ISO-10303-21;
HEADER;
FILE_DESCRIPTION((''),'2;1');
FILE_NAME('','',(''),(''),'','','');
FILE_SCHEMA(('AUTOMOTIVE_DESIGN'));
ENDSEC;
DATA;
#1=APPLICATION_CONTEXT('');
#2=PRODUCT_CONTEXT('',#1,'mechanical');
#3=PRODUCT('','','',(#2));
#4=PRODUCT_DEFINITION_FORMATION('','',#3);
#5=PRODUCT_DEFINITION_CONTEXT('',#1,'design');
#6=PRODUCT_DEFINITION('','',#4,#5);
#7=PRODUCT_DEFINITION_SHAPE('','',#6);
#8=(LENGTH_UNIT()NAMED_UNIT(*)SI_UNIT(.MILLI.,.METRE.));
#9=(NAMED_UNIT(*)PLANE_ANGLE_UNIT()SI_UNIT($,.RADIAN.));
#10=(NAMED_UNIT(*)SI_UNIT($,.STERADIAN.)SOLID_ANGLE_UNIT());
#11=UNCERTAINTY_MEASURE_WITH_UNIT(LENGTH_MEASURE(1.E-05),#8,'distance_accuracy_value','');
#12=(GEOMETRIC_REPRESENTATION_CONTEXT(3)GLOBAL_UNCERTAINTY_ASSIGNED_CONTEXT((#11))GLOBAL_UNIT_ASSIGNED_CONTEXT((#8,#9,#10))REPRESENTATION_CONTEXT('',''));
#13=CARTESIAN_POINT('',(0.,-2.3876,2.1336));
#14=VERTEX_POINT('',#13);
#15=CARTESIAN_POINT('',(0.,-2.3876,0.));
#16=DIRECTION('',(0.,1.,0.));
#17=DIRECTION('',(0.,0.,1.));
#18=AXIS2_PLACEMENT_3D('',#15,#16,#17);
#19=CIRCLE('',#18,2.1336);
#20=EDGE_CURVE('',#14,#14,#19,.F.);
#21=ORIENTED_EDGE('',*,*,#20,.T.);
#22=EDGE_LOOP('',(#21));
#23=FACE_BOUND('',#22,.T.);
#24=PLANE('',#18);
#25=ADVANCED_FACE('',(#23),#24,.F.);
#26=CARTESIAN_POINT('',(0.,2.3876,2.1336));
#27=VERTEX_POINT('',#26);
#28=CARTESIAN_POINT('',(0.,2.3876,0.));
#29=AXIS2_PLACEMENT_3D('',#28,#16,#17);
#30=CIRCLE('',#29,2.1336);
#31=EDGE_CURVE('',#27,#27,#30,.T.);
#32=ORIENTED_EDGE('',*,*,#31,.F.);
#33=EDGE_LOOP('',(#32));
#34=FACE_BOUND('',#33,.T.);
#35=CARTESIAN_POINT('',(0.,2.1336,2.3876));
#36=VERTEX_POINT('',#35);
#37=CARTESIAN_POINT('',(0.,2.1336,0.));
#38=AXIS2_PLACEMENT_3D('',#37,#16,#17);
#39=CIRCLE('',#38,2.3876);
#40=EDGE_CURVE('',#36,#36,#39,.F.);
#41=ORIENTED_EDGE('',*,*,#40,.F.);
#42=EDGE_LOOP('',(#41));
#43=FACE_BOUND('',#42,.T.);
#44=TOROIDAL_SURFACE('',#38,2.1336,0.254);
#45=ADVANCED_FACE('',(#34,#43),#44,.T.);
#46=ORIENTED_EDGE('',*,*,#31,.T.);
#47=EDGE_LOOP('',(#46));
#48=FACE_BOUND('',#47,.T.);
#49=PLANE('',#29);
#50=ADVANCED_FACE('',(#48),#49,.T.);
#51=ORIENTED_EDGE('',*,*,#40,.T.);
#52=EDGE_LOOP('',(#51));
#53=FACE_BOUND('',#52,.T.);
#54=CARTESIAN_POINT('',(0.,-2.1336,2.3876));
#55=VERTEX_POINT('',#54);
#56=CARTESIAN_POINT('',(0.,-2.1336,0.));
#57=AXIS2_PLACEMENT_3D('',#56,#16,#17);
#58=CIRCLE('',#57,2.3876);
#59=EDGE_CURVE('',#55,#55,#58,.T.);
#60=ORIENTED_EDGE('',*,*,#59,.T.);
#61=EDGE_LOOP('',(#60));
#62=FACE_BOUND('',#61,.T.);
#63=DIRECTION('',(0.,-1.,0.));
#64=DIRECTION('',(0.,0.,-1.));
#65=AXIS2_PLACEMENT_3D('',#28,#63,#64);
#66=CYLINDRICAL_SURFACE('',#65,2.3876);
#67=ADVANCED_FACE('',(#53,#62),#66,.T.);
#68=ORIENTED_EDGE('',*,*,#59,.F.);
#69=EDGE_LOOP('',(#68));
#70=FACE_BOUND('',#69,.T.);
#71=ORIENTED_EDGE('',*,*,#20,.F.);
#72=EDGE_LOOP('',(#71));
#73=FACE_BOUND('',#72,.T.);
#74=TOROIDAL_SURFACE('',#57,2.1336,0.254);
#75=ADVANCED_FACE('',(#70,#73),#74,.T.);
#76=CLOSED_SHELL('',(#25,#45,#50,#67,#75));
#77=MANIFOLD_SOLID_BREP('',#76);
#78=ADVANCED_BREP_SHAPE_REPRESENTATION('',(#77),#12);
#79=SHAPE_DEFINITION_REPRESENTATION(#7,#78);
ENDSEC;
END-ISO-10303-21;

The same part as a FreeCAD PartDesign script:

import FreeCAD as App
import Part
import Sketcher

V = App.Vector
Q = App.Units.Quantity


def edges_at(feature, points):
    """Names of the edges that pass closest to the given points."""
    edges = feature.Shape.Edges
    near = lambda p: min(range(len(edges)), key=lambda i: edges[i].distToShape(Part.Vertex(*p))[0])
    return sorted({f"Edge{near(p) + 1}" for p in points})

doc = App.newDocument("Part")
body = doc.addObject("PartDesign::Body", "Body")

# Sketch on XZ plane
sketch1 = body.newObject("Sketcher::SketchObject", "Sketch")
sketch1.AttachmentSupport = (doc.getObject("XZ_Plane"), [""])
sketch1.MapMode = "FlatFace"
sketch1.addGeometry(Part.Circle(V(0, 0, 0), V(0, 0, 1), 2.4), False)
sketch1.addConstraint([
    Sketcher.Constraint("Coincident", 0, 3, -1, 1),
    Sketcher.Constraint("Diameter", 0, Q("0.188 in")),
])
pad1 = body.newObject("PartDesign::Pad", "Pad")
pad1.Profile = sketch1
pad1.Length = Q("0.188 in")
pad1.Midplane = True
doc.recompute()

fillet = body.newObject("PartDesign::Fillet", "Fillet")
fillet.Base = (pad1, edges_at(pad1, [(0, -2.388, -2.388), (0, 2.388, -2.388)]))
fillet.Radius = Q("0.01 in")

doc.recompute()
